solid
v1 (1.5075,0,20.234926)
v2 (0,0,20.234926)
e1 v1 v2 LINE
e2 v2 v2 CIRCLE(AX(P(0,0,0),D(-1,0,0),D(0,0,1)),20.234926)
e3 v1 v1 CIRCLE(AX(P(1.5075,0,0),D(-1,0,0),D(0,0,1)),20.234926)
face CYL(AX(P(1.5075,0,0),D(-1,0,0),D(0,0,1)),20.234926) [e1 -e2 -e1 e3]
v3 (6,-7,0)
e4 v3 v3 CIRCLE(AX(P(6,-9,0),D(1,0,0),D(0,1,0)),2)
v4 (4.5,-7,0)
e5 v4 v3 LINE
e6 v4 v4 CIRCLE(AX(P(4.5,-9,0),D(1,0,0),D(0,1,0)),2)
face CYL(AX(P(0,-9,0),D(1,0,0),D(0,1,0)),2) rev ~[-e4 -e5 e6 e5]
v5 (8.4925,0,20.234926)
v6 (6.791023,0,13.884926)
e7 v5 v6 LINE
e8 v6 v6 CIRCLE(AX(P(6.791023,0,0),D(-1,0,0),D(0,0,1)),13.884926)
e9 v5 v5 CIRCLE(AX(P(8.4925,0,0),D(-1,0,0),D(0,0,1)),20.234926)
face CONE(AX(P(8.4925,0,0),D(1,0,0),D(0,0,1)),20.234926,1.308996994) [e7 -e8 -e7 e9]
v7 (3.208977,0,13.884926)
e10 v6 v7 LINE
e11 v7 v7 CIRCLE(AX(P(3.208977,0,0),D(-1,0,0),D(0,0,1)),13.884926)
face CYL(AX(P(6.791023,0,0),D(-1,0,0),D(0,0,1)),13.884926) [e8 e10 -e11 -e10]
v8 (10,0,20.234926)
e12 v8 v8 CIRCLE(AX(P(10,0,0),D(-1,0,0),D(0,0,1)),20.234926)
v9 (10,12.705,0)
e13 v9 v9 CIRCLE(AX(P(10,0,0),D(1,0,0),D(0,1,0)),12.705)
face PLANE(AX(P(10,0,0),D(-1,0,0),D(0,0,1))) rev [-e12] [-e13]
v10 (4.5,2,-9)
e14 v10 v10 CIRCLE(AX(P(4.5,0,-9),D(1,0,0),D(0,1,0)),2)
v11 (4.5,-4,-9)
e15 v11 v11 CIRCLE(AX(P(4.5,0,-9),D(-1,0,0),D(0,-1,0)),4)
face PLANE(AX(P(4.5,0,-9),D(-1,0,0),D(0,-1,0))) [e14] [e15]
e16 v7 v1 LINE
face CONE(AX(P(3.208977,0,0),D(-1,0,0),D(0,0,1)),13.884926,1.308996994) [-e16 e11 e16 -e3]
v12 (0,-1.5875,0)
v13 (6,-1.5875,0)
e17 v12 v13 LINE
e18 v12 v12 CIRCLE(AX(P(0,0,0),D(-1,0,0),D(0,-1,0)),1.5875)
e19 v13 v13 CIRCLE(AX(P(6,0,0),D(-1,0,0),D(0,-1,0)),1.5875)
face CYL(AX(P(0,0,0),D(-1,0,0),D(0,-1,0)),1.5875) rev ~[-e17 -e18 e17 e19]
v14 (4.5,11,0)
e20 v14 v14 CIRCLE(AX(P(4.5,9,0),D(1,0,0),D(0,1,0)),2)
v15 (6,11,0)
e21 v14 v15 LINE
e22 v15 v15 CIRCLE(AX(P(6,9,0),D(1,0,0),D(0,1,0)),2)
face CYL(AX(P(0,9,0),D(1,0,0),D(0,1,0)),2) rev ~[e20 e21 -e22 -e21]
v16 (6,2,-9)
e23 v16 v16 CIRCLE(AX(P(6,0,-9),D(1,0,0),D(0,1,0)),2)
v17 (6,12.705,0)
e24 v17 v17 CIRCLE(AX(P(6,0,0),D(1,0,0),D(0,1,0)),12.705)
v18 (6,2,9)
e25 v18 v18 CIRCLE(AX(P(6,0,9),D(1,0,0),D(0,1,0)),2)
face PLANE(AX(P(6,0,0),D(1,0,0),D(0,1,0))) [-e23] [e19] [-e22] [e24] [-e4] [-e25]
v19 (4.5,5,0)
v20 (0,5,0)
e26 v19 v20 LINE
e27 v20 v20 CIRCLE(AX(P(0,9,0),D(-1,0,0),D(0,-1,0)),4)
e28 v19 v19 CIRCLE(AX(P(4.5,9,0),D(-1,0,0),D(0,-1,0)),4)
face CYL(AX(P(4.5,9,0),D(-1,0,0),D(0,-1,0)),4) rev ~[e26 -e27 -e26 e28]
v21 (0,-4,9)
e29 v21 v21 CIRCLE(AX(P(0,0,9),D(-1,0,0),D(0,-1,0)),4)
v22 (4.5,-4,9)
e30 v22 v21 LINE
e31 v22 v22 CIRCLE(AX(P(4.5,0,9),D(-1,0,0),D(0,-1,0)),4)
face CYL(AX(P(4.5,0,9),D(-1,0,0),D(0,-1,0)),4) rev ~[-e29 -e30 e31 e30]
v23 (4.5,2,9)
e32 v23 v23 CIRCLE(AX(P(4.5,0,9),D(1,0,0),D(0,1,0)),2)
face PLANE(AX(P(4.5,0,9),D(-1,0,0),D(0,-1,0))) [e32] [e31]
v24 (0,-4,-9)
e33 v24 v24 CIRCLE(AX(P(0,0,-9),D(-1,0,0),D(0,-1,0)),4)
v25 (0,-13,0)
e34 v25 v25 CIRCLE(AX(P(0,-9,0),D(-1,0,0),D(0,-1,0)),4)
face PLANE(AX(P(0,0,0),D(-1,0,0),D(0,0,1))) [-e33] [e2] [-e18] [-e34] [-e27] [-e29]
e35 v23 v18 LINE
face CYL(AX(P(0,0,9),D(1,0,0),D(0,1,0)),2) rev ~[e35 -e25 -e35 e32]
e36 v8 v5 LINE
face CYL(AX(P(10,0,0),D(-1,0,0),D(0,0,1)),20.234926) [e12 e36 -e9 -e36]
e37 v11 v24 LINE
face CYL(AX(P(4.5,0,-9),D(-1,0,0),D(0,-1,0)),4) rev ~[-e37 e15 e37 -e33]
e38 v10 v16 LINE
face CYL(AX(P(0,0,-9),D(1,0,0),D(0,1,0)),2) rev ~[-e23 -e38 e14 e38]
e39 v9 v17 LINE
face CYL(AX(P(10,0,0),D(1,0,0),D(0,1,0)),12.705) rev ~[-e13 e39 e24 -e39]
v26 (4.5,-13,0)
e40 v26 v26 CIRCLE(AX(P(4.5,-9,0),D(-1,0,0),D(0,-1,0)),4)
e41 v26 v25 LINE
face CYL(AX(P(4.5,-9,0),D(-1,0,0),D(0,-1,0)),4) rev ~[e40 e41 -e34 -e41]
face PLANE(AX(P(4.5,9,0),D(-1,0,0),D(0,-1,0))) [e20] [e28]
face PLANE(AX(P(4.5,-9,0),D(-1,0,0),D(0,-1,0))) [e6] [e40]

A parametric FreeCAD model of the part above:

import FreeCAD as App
import Part
import Sketcher
from FreeCAD import Vector
Q = App.Units.Quantity

doc = App.newDocument("Part")
body = doc.addObject("PartDesign::Body", "Body")

# Sketch on XZ plane
sketch1 = body.newObject("Sketcher::SketchObject", "Sketch")
sketch1.AttachmentSupport = (doc.getObject("XZ_Plane"), [""])
sketch1.MapMode = "FlatFace"
sketch1.addGeometry(Part.LineSegment(Vector(0, 20.234926, 0), Vector(0, 0, 0)), False)
sketch1.addGeometry(Part.LineSegment(Vector(0, 0, 0), Vector(10, 0, 0)), False)
sketch1.addGeometry(Part.LineSegment(Vector(10, 0, 0), Vector(10, 20.234926, 0)), False)
sketch1.addGeometry(Part.LineSegment(Vector(10, 20.234926, 0), Vector(8.4925, 20.234926, 0)), False)
sketch1.addGeometry(Part.LineSegment(Vector(8.4925, 20.234926, 0), Vector(6.791023, 13.884926, 0)), False)
sketch1.addGeometry(Part.LineSegment(Vector(6.791023, 13.884926, 0), Vector(3.208977, 13.884926, 0)), False)
sketch1.addGeometry(Part.LineSegment(Vector(3.208977, 13.884926, 0), Vector(1.5075, 20.234926, 0)), False)
sketch1.addGeometry(Part.LineSegment(Vector(1.5075, 20.234926, 0), Vector(0, 20.234926, 0)), False)
sketch1.addConstraint(Sketcher.Constraint("Coincident", 0, 2, 1, 1))
sketch1.addConstraint(Sketcher.Constraint("Coincident", 1, 2, 2, 1))
sketch1.addConstraint(Sketcher.Constraint("Coincident", 2, 2, 3, 1))
sketch1.addConstraint(Sketcher.Constraint("Coincident", 3, 2, 4, 1))
sketch1.addConstraint(Sketcher.Constraint("Coincident", 4, 2, 5, 1))
sketch1.addConstraint(Sketcher.Constraint("Coincident", 5, 2, 6, 1))
sketch1.addConstraint(Sketcher.Constraint("Coincident", 6, 2, 7, 1))
sketch1.addConstraint(Sketcher.Constraint("Coincident", 7, 2, 0, 1))
sketch1.addConstraint(Sketcher.Constraint("Vertical", 0))
sketch1.addConstraint(Sketcher.Constraint("Horizontal", 1))
sketch1.addConstraint(Sketcher.Constraint("Vertical", 2))
sketch1.addConstraint(Sketcher.Constraint("Horizontal", 3))
sketch1.addConstraint(Sketcher.Constraint("Horizontal", 5))
sketch1.addConstraint(Sketcher.Constraint("Horizontal", 7))
sketch1.addConstraint(Sketcher.Constraint("Coincident", 0, 2, -1, 1))
sketch1.addConstraint(Sketcher.Constraint("Horizontal", 3, 2, 6, 2))
sketch1.addConstraint(Sketcher.Constraint("Equal", 3, 7))
sketch1.addConstraint(Sketcher.Constraint("Equal", 4, 6))
sketch1.addConstraint(Sketcher.Constraint("DistanceX", 1, 1, 1, 2, Q("10 mm")))
sketch1.addConstraint(Sketcher.Constraint("Angle", 4, Q("-104.999997 deg")))
sketch1.addConstraint(Sketcher.Constraint("DistanceY", 4, 2, 3, 2, Q("6.35 mm")))
sketch1.addConstraint(Sketcher.Constraint("DistanceX", 3, 2, 3, 1, Q("1.5075 mm")))
sketch1.addConstraint(Sketcher.Constraint("DistanceY", 0, 2, 0, 1, Q("20.234926 mm")))
revolution = body.newObject("PartDesign::Revolution", "Revolution")
revolution.Profile = sketch1
revolution.ReferenceAxis = (sketch1, ["H_Axis"])
revolution.Angle = 360

# Sketch on YZ plane
sketch2 = body.newObject("Sketcher::SketchObject", "Sketch001")
sketch2.AttachmentSupport = (doc.getObject("YZ_Plane"), [""])
sketch2.MapMode = "FlatFace"
sketch2.AttachmentOffset = App.Placement(Vector(0, 0, 10), App.Rotation())
sketch2.addGeometry(Part.Circle(Vector(0, 0, 0), Vector(0, 0, 1), 12.705), False)
sketch2.addConstraint(Sketcher.Constraint("Coincident", 0, 3, -1, 1))
sketch2.addConstraint(Sketcher.Constraint("Diameter", 0, Q("25.41 mm")))
pocket1 = body.newObject("PartDesign::Pocket", "Pocket")
pocket1.Profile = sketch2
pocket1.Length = 4

# Sketch on YZ plane
sketch3 = body.newObject("Sketcher::SketchObject", "Sketch002")
sketch3.AttachmentSupport = (doc.getObject("YZ_Plane"), [""])
sketch3.MapMode = "FlatFace"
sketch3.addGeometry(Part.Circle(Vector(0, 9, 0), Vector(0, 0, 1), 2), False)
sketch3.addGeometry(Part.Circle(Vector(9, 0, 0), Vector(0, 0, 1), 2), False)
sketch3.addGeometry(Part.Circle(Vector(0, -9, 0), Vector(0, 0, 1), 2), False)
sketch3.addGeometry(Part.Circle(Vector(-9, 0, 0), Vector(0, 0, 1), 2), False)
sketch3.addConstraint(Sketcher.Constraint("Equal", 0, 1))
sketch3.addConstraint(Sketcher.Constraint("Equal", 1, 2))
sketch3.addConstraint(Sketcher.Constraint("Equal", 2, 3))
sketch3.addConstraint(Sketcher.Constraint("Symmetric", 0, 3, 2, 3, -1, 1))
sketch3.addConstraint(Sketcher.Constraint("Symmetric", 1, 3, 3, 3, -1, 1))
sketch3.addConstraint(Sketcher.Constraint("PointOnObject", 0, 3, -2))
sketch3.addConstraint(Sketcher.Constraint("PointOnObject", 1, 3, -1))
sketch3.addConstraint(Sketcher.Constraint("Diameter", 0, Q("4 mm")))
sketch3.addConstraint(Sketcher.Constraint("DistanceY", -1, 1, 0, 3, Q("9 mm")))
sketch3.addConstraint(Sketcher.Constraint("DistanceX", -1, 1, 1, 3, Q("9 mm")))
doc.recompute()
hole = body.newObject("PartDesign::Hole", "Hole")
hole.Profile = sketch3
hole.ThreadType = "None"
hole.Diameter = 4
hole.DepthType = "ThroughAll"
hole.HoleCutType = "Counterbore"
hole.HoleCutDiameter = 8
hole.HoleCutDepth = 4.5
hole.Reversed = True

# Sketch on YZ plane
sketch4 = body.newObject("Sketcher::SketchObject", "Sketch003")
sketch4.AttachmentSupport = (doc.getObject("YZ_Plane"), [""])
sketch4.MapMode = "FlatFace"
sketch4.addGeometry(Part.Circle(Vector(0, 0, 0), Vector(0, 0, 1), 1.5875), False)
sketch4.addConstraint(Sketcher.Constraint("Coincident", 0, 3, -1, 1))
sketch4.addConstraint(Sketcher.Constraint("Diameter", 0, Q("3.175 mm")))
pocket2 = body.newObject("PartDesign::Pocket", "Pocket001")
pocket2.Profile = sketch4
pocket2.Type = "ThroughAll"
pocket2.Reversed = True

doc.recompute()
